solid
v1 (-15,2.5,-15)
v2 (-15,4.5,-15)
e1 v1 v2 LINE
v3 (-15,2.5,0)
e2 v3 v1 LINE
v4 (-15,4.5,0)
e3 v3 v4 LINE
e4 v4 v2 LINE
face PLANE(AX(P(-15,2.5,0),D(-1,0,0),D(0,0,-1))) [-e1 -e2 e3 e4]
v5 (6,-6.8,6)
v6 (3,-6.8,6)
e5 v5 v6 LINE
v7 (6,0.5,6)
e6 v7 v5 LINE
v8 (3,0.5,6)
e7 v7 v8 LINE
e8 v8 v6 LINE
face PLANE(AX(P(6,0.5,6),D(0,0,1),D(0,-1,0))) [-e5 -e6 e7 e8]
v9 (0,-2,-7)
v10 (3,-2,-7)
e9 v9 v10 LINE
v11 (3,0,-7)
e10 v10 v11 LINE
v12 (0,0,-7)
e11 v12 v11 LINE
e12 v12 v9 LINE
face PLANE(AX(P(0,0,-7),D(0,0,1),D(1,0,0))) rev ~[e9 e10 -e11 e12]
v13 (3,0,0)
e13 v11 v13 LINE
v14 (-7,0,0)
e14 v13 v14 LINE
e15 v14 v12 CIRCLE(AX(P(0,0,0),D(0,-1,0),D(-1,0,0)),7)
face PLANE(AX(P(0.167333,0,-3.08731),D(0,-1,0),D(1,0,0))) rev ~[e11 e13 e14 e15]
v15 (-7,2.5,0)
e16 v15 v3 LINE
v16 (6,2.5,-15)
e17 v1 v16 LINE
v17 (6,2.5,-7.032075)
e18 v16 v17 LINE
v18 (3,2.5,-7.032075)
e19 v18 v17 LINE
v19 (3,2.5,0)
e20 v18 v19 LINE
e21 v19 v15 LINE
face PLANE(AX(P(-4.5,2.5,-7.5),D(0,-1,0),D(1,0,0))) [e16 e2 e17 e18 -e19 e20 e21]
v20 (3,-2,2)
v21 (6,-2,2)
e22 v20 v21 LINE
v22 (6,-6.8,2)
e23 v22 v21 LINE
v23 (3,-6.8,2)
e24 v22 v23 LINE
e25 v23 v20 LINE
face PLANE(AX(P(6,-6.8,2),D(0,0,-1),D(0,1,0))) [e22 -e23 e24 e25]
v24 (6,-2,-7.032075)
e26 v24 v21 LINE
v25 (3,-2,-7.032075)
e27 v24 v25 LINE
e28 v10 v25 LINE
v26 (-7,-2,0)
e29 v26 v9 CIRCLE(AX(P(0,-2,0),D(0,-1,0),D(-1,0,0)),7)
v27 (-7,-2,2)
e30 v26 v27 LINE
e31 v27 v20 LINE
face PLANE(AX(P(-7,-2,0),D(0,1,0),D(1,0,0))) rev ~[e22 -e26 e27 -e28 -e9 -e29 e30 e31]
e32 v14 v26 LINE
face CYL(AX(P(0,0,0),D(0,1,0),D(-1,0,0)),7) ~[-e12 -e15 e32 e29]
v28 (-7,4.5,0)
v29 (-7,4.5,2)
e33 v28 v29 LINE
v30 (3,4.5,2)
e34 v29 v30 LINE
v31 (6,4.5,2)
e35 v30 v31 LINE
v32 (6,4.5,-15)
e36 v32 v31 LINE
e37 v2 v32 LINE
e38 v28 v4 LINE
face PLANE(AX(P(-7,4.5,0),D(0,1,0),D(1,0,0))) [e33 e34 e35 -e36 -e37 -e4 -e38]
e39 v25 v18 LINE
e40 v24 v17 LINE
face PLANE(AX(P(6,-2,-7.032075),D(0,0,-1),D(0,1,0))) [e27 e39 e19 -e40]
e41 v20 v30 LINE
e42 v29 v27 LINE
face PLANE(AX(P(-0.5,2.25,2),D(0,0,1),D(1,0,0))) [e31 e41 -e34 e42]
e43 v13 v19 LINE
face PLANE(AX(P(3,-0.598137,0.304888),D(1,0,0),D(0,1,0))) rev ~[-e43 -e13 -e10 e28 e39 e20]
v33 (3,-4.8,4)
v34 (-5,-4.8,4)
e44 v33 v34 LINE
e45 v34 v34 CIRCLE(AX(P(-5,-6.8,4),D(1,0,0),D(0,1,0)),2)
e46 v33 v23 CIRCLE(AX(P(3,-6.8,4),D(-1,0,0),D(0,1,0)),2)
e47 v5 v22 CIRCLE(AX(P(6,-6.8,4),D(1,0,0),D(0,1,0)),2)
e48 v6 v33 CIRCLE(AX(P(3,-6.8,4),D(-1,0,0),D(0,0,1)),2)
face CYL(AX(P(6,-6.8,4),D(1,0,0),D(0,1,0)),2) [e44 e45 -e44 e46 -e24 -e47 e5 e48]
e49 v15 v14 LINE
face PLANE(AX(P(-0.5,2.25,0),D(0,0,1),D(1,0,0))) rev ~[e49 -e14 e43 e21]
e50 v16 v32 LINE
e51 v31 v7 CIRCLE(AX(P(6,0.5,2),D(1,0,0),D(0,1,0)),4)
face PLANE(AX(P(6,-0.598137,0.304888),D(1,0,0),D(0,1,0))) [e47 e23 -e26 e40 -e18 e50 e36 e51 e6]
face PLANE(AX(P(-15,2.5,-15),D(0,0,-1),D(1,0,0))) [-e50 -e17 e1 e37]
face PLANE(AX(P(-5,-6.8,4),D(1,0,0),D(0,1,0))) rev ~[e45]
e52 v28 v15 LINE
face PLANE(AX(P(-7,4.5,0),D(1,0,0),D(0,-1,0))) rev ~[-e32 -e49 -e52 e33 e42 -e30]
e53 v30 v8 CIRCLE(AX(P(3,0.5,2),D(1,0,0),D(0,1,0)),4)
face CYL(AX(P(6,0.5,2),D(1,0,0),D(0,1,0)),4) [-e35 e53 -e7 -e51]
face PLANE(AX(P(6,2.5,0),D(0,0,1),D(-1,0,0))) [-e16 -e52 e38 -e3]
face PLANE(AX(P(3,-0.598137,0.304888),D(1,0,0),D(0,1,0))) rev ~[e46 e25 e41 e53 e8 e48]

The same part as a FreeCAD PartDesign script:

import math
import FreeCAD as App
import Part
import Sketcher
Q = App.Units.Quantity

doc = App.newDocument("Part")
body = doc.addObject("PartDesign::Body", "Body")

sketch1 = body.newObject("Sketcher::SketchObject", "Sketch")
sketch1.AttachmentSupport = (doc.getObject("XZ_Plane"), [""])
sketch1.MapMode = "FlatFace"
sketch1.addGeometry([
    Part.ArcOfCircle(Part.Circle(App.Vector(0, 0, 0), App.Vector(0, 0, 1), 7), math.radians(180), math.radians(270)),
    Part.LineSegment(App.Vector(0, -7, 0), App.Vector(6, -7, 0)),
    Part.LineSegment(App.Vector(6, -7, 0), App.Vector(6, 0, 0)),
    Part.LineSegment(App.Vector(6, 0, 0), App.Vector(-7, 0, 0)),
], False)
sketch1.addConstraint([
    Sketcher.Constraint("Tangent", 0, 2, 1, 1),
    Sketcher.Constraint("Coincident", 1, 2, 2, 1),
    Sketcher.Constraint("Coincident", 2, 2, 3, 1),
    Sketcher.Constraint("Coincident", 3, 2, 0, 1),
    Sketcher.Constraint("Horizontal", 1),
    Sketcher.Constraint("Vertical", 2),
    Sketcher.Constraint("Horizontal", 3),
    Sketcher.Constraint("Coincident", 0, 3, -1, 1),
    Sketcher.Constraint("PointOnObject", 2, 2, -1),
    Sketcher.Constraint("Radius", 0, Q("7 mm")),
    Sketcher.Constraint("DistanceX", 1, 1, 1, 2, Q("6 mm")),
])
pad1 = body.newObject("PartDesign::Pad", "Pad")
pad1.Profile = sketch1
pad1.Length = 2
body2 = doc.addObject("PartDesign::Body", "Body001")

sketch2 = body2.newObject("Sketcher::SketchObject", "Sketch001")
sketch2.AttachmentSupport = (doc.getObject("XZ_Plane001"), [""])
sketch2.MapMode = "FlatFace"
sketch2.AttachmentOffset = App.Placement(App.Vector(0, 0, -2.5), App.Rotation())
sketch2.addGeometry([
    Part.LineSegment(App.Vector(6, 0, 0), App.Vector(-15, 0, 0)),
    Part.LineSegment(App.Vector(-15, 0, 0), App.Vector(-15, -15, 0)),
    Part.LineSegment(App.Vector(-15, -15, 0), App.Vector(6, -15, 0)),
    Part.LineSegment(App.Vector(6, -15, 0), App.Vector(6, 0, 0)),
], False)
sketch2.addConstraint([
    Sketcher.Constraint("Coincident", 0, 2, 1, 1),
    Sketcher.Constraint("Coincident", 1, 2, 2, 1),
    Sketcher.Constraint("Coincident", 2, 2, 3, 1),
    Sketcher.Constraint("Coincident", 3, 2, 0, 1),
    Sketcher.Constraint("Horizontal", 0),
    Sketcher.Constraint("Vertical", 1),
    Sketcher.Constraint("Horizontal", 2),
    Sketcher.Constraint("Vertical", 3),
    Sketcher.Constraint("PointOnObject", 0, 2, -1),
    Sketcher.Constraint("DistanceX", 0, 2, 0, 1, Q("21 mm")),
    Sketcher.Constraint("DistanceY", 1, 2, 1, 1, Q("15 mm")),
    Sketcher.Constraint("DistanceX", 0, 2, -1, 1, Q("15 mm")),
])
pad2 = body2.newObject("PartDesign::Pad", "Pad001")
pad2.Profile = sketch2
pad2.Length = 2
pad2.Reversed = True
body3 = doc.addObject("PartDesign::Body", "Body002")

sketch3 = body3.newObject("Sketcher::SketchObject", "Sketch002")
sketch3.AttachmentSupport = (doc.getObject("XY_Plane002"), [""])
sketch3.MapMode = "FlatFace"
sketch3.addGeometry([
    Part.LineSegment(App.Vector(-7, 4, 0), App.Vector(-7, -2, 0)),
    Part.LineSegment(App.Vector(-7, -2, 0), App.Vector(6, -2, 0)),
    Part.LineSegment(App.Vector(6, -2, 0), App.Vector(6, 4, 0)),
    Part.LineSegment(App.Vector(6, 4, 0), App.Vector(-7, 4, 0)),
], False)
sketch3.addConstraint([
    Sketcher.Constraint("Coincident", 0, 2, 1, 1),
    Sketcher.Constraint("Coincident", 1, 2, 2, 1),
    Sketcher.Constraint("Coincident", 2, 2, 3, 1),
    Sketcher.Constraint("Coincident", 3, 2, 0, 1),
    Sketcher.Constraint("Vertical", 0),
    Sketcher.Constraint("Horizontal", 1),
    Sketcher.Constraint("Vertical", 2),
    Sketcher.Constraint("Horizontal", 3),
    Sketcher.Constraint("DistanceX", 1, 1, 1, 2, Q("13 mm")),
    Sketcher.Constraint("DistanceY", 0, 2, 0, 1, Q("6.5 mm")),
    Sketcher.Constraint("DistanceX", 0, 2, -1, 1, Q("7 mm")),
    Sketcher.Constraint("DistanceY", 0, 2, -1, 1, Q("2 mm")),
])
pad3 = body3.newObject("PartDesign::Pad", "Pad002")
pad3.Profile = sketch3
pad3.Length = 2
body4 = doc.addObject("PartDesign::Body", "Body003")

sketch4 = body4.newObject("Sketcher::SketchObject", "Sketch003")
sketch4.AttachmentSupport = (doc.getObject("YZ_Plane003"), [""])
sketch4.MapMode = "FlatFace"
sketch4.AttachmentOffset = App.Placement(App.Vector(0, 0, 6), App.Rotation())
sketch4.addGeometry(Part.Circle(App.Vector(-6.8, 4, 0), App.Vector(0, 0, 1), 2), False)
sketch4.addConstraint([
    Sketcher.Constraint("Diameter", 0, Q("4 mm")),
    Sketcher.Constraint("DistanceY", -1, 1, 0, 3, Q("4 mm")),
    Sketcher.Constraint("DistanceX", 0, 3, -1, 1, Q("6.8 mm")),
])
pad4 = body4.newObject("PartDesign::Pad", "Pad003")
pad4.Profile = sketch4
pad4.Length = 11
pad4.Reversed = True
body.AllowCompound = True
doc.recompute()

boolean = body.newObject("PartDesign::Boolean", "Boolean")
boolean.Type = "Fuse"
boolean.addObjects([body2])
doc.recompute()

boolean2 = body.newObject("PartDesign::Boolean", "Boolean001")
boolean2.Type = "Fuse"
boolean2.addObjects([body3])
doc.recompute()

boolean3 = body.newObject("PartDesign::Boolean", "Boolean002")
boolean3.Type = "Fuse"
boolean3.addObjects([body4])

sketch5 = body.newObject("Sketcher::SketchObject", "Sketch004")
sketch5.AttachmentSupport = (doc.getObject("YZ_Plane"), [""])
sketch5.MapMode = "FlatFace"
sketch5.AttachmentOffset = App.Placement(App.Vector(0, 0, 6), App.Rotation())
sketch5.addGeometry([
    Part.LineSegment(App.Vector(-6.8, 2, 0), App.Vector(-2, 2, 0)),
    Part.LineSegment(App.Vector(-2, 2, 0), App.Vector(-2, -7, 0)),
    Part.LineSegment(App.Vector(-2, -7, 0), App.Vector(4.5, -7, 0)),
    Part.LineSegment(App.Vector(4.5, -7, 0), App.Vector(4.5, 2, 0)),
    Part.ArcOfCircle(Part.Circle(App.Vector(0.5, 2, 0), App.Vector(0, 0, 1), 4), math.radians(0), math.radians(90)),
    Part.LineSegment(App.Vector(0.5, 6, 0), App.Vector(-6.8, 6, 0)),
    Part.ArcOfCircle(Part.Circle(App.Vector(-6.8, 4, 0), App.Vector(0, 0, 1), 2), math.radians(0), math.radians(90)),
    Part.ArcOfCircle(Part.Circle(App.Vector(-6.8, 4, 0), App.Vector(0, 0, 1), 2), math.radians(-90), math.radians(0)),
], False)
sketch5.addConstraint([
    Sketcher.Constraint("Coincident", 0, 2, 1, 1),
    Sketcher.Constraint("Coincident", 1, 2, 2, 1),
    Sketcher.Constraint("Coincident", 2, 2, 3, 1),
    Sketcher.Constraint("Tangent", 3, 2, 4, 1),
    Sketcher.Constraint("Tangent", 4, 2, 5, 1),
    Sketcher.Constraint("Tangent", 5, 2, 6, 2),
    Sketcher.Constraint("Tangent", 6, 1, 7, 2),
    Sketcher.Constraint("Tangent", 7, 1, 0, 1),
    Sketcher.Constraint("Horizontal", 0),
    Sketcher.Constraint("Vertical", 1),
    Sketcher.Constraint("Horizontal", 2),
    Sketcher.Constraint("Vertical", 3),
    Sketcher.Constraint("Horizontal", 5),
    Sketcher.Constraint("Equal", 6, 7),
    Sketcher.Constraint("Horizontal", 4, 3, 0, 2),
    Sketcher.Constraint("Horizontal", 7, 3, 6, 1),
    Sketcher.Constraint("Radius", 4, Q("4 mm")),
    Sketcher.Constraint("DistanceX", 0, 1, 0, 2, Q("4.8 mm")),
    Sketcher.Constraint("DistanceX", 2, 1, 2, 2, Q("6.5 mm")),
    Sketcher.Constraint("DistanceY", -1, 1, 4, 3, Q("2 mm")),
    Sketcher.Constraint("DistanceX", 0, 2, -1, 1, Q("2 mm")),
    Sketcher.Constraint("DistanceY", 1, 2, 1, 1, Q("9.032075 mm")),
])
pad5 = body.newObject("PartDesign::Pad", "Pad004")
pad5.Profile = sketch5
pad5.Length = 3
pad5.Reversed = True

doc.recompute()
